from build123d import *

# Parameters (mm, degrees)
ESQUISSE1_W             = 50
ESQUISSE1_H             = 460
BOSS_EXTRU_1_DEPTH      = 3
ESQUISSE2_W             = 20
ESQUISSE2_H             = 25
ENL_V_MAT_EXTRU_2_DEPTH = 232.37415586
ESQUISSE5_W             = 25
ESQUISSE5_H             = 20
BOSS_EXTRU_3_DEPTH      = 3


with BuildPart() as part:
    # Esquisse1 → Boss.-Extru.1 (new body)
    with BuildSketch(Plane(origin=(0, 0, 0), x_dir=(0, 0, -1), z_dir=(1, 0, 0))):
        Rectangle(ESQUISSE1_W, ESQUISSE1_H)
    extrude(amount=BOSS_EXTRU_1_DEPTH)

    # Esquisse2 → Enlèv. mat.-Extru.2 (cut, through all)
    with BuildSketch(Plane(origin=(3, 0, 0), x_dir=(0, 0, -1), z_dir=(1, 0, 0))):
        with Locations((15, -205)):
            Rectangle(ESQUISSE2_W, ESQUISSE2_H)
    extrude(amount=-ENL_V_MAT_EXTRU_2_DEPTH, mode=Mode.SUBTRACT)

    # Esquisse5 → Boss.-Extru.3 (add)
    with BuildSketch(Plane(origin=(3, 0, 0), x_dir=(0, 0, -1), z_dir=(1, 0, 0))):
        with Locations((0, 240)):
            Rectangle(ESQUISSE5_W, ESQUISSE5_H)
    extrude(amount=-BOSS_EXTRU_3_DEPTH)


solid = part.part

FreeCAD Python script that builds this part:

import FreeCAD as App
import Part
import Sketcher
from FreeCAD import Vector


def add_polygon(sketch, points):
    """Adds a closed chain of lines whose ends are joined by coincident constraints."""
    first, n = sketch.GeometryCount, len(points)
    for a, b in zip(points, points[1:] + points[:1]):
        sketch.addGeometry(Part.LineSegment(App.Vector(*a, 0), App.Vector(*b, 0)), False)
    for i in range(n):
        sketch.addConstraint(Sketcher.Constraint("Coincident", first + i, 2, first + (i + 1) % n, 1))

doc = App.newDocument("Part")
params = doc.addObject("Spreadsheet::Sheet", "Params")
for row, (alias, value) in enumerate([
    ("sketch1_width", "460 mm"),
    ("sketch1_height", "50 mm"),
    ("pad1_length", "3 mm"),
    ("sketch2_width", "25 mm"),
    ("sketch2_height", "20 mm"),
    ("sketch3_width", "20 mm"),
    ("sketch3_height", "25 mm"),
    ("pad2_length", "3 mm"),
], start=1):
    params.set(f"A{row}", alias)
    params.set(f"B{row}", "=" + value)
    params.setAlias(f"B{row}", alias)

body = doc.addObject("PartDesign::Body", "Body")

# Sketch on YZ plane
sketch1 = body.newObject("Sketcher::SketchObject", "Sketch")
sketch1.AttachmentSupport = (doc.getObject("YZ_Plane"), [""])
sketch1.MapMode = "FlatFace"
add_polygon(sketch1, [(230, 25), (-230, 25), (-230, -25), (230, -25)])  # lines 0-3
sketch1.addConstraint(Sketcher.Constraint("Horizontal", 0))
sketch1.addConstraint(Sketcher.Constraint("Vertical", 1))
sketch1.addConstraint(Sketcher.Constraint("Horizontal", 2))
sketch1.addConstraint(Sketcher.Constraint("Vertical", 3))
sketch1.addConstraint(Sketcher.Constraint("Symmetric", 0, 2, 2, 2, -1, 1))
sketch1.addConstraint(Sketcher.Constraint("DistanceX", 0, 2, 0, 1, 460.0))
sketch1.addConstraint(Sketcher.Constraint("DistanceY", 1, 2, 1, 1, 50.0))
sketch1.setExpression("Constraints[9]", "Params.sketch1_width")
sketch1.setExpression("Constraints[10]", "Params.sketch1_height")
pad1 = body.newObject("PartDesign::Pad", "Pad")
pad1.Profile = sketch1
pad1.setExpression("Length", "Params.pad1_length")

# Sketch on YZ plane
sketch2 = body.newObject("Sketcher::SketchObject", "Sketch001")
sketch2.AttachmentSupport = (doc.getObject("YZ_Plane"), [""])
sketch2.MapMode = "FlatFace"
sketch2.AttachmentOffset = App.Placement(Vector(0, 0, 3), App.Rotation())
add_polygon(sketch2, [(-192, -5), (-218, -5), (-218, -25), (-192, -25)])  # lines 0-3
sketch2.addConstraint(Sketcher.Constraint("Horizontal", 0))
sketch2.addConstraint(Sketcher.Constraint("Vertical", 1))
sketch2.addConstraint(Sketcher.Constraint("Horizontal", 2))
sketch2.addConstraint(Sketcher.Constraint("Vertical", 3))
sketch2.addConstraint(Sketcher.Constraint("DistanceX", 0, 2, 0, 1, 25.0))
sketch2.addConstraint(Sketcher.Constraint("DistanceY", 1, 2, 1, 1, 20.0))
sketch2.addConstraint(Sketcher.Constraint("DistanceY", 0, 2, -1, 1, 5.0))
sketch2.addConstraint(Sketcher.Constraint("DistanceX", 0, 2, -1, 1, 217.5))
sketch2.setExpression("Constraints[8]", "Params.sketch2_width")
sketch2.setExpression("Constraints[9]", "Params.sketch2_height")
pocket1 = body.newObject("PartDesign::Pocket", "Pocket")
pocket1.Profile = sketch2
pocket1.Type = "ThroughAll"

# Sketch on YZ plane
sketch3 = body.newObject("Sketcher::SketchObject", "Sketch002")
sketch3.AttachmentSupport = (doc.getObject("YZ_Plane"), [""])
sketch3.MapMode = "FlatFace"
sketch3.AttachmentOffset = App.Placement(Vector(0, 0, 3), App.Rotation())
add_polygon(sketch3, [(250, 12), (230, 12), (230, -12), (250, -12)])  # lines 0-3
sketch3.addConstraint(Sketcher.Constraint("Horizontal", 0))
sketch3.addConstraint(Sketcher.Constraint("Vertical", 1))
sketch3.addConstraint(Sketcher.Constraint("Horizontal", 2))
sketch3.addConstraint(Sketcher.Constraint("Vertical", 3))
sketch3.addConstraint(Sketcher.Constraint("DistanceX", 0, 2, 0, 1, 20.0))
sketch3.addConstraint(Sketcher.Constraint("DistanceY", 1, 2, 1, 1, 25.0))
sketch3.addConstraint(Sketcher.Constraint("DistanceX", -1, 1, 0, 2, 230.0))
sketch3.addConstraint(Sketcher.Constraint("DistanceY", -1, 1, 0, 2, 12.5))
sketch3.setExpression("Constraints[8]", "Params.sketch3_width")
sketch3.setExpression("Constraints[9]", "Params.sketch3_height")
pad2 = body.newObject("PartDesign::Pad", "Pad001")
pad2.Profile = sketch3
pad2.setExpression("Length", "Params.pad2_length")
pad2.Reversed = True

doc.recompute()
